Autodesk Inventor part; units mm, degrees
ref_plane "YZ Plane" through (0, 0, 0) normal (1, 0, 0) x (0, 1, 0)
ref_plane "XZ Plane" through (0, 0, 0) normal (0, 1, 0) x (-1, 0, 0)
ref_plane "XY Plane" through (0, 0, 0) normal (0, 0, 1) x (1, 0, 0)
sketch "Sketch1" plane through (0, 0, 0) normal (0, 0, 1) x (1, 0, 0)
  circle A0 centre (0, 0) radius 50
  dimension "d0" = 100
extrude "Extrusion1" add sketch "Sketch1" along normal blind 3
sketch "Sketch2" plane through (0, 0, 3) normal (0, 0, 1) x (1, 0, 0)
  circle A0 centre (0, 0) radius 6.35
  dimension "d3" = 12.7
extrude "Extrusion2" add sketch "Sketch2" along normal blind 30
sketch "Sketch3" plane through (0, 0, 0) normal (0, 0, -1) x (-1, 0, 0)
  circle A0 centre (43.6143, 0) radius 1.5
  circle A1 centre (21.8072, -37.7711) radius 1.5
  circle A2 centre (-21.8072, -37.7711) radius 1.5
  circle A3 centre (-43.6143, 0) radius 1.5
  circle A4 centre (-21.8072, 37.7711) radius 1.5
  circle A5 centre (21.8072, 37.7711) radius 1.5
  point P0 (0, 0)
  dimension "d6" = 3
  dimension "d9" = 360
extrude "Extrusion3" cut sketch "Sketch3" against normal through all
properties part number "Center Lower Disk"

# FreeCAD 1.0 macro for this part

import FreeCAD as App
import Part
import Sketcher
from FreeCAD import Vector
Q = App.Units.Quantity

doc = App.newDocument("Part")
params = doc.addObject("Spreadsheet::Sheet", "Params")
for row, (alias, value) in enumerate([
    ("sketch1_diameter", "3.937 in"),
    ("pad1_length", "0.1181102 in"),
    ("sketch2_diameter", "0.5 in"),
    ("pad2_length", "1.1811024 in"),
], start=1):
    params.set(f"A{row}", alias)
    params.set(f"B{row}", "=" + value)
    params.setAlias(f"B{row}", alias)

body = doc.addObject("PartDesign::Body", "Body")

# Sketch on XY plane
sketch1 = body.newObject("Sketcher::SketchObject", "Sketch")
sketch1.AttachmentSupport = (doc.getObject("XY_Plane"), [""])
sketch1.MapMode = "FlatFace"
sketch1.addGeometry(Part.Circle(Vector(0, 0, 0), Vector(0, 0, 1), 50), False)
sketch1.addConstraint([
    Sketcher.Constraint("Coincident", 0, 3, -1, 1),
    Sketcher.Constraint("Diameter", 0, Q("3.937 in")),
])
sketch1.setExpression("Constraints[1]", "Params.sketch1_diameter")
pad1 = body.newObject("PartDesign::Pad", "Pad")
pad1.Profile = sketch1
pad1.setExpression("Length", "Params.pad1_length")

# Sketch on XY plane
sketch2 = body.newObject("Sketcher::SketchObject", "Sketch001")
sketch2.AttachmentSupport = (doc.getObject("XY_Plane"), [""])
sketch2.MapMode = "FlatFace"
sketch2.AttachmentOffset = App.Placement(Vector(0, 0, 0.1181102 * 25.4), App.Rotation())
sketch2.addGeometry(Part.Circle(Vector(0, 0, 0), Vector(0, 0, 1), 6.35), False)
sketch2.addConstraint([
    Sketcher.Constraint("Coincident", 0, 3, -1, 1),
    Sketcher.Constraint("Diameter", 0, Q("0.5 in")),
])
sketch2.setExpression("Constraints[1]", "Params.sketch2_diameter")
pad2 = body.newObject("PartDesign::Pad", "Pad001")
pad2.Profile = sketch2
pad2.setExpression("Length", "Params.pad2_length")

# Sketch on XY plane
sketch3 = body.newObject("Sketcher::SketchObject", "Sketch002")
sketch3.AttachmentSupport = (doc.getObject("XY_Plane"), [""])
sketch3.MapMode = "FlatFace"
sketch3.addGeometry([
    Part.Circle(Vector(-43.6143, 0, 0), Vector(0, 0, 1), 1.5),  # 0
    Part.Circle(Vector(-21.8072, -37.7711, 0), Vector(0, 0, 1), 1.5),  # 1
    Part.Circle(Vector(21.8072, -37.7711, 0), Vector(0, 0, 1), 1.5),  # 2
    Part.Circle(Vector(43.6143, 0, 0), Vector(0, 0, 1), 1.5),  # 3
    Part.Circle(Vector(21.8072, 37.7711, 0), Vector(0, 0, 1), 1.5),  # 4
    Part.Circle(Vector(-21.8072, 37.7711, 0), Vector(0, 0, 1), 1.5),  # 5
], False)
sketch3.addConstraint([
    Sketcher.Constraint("Equal", 0, 1),
    Sketcher.Constraint("Equal", 1, 2),
    Sketcher.Constraint("Equal", 2, 3),
    Sketcher.Constraint("Equal", 3, 4),
    Sketcher.Constraint("Equal", 4, 5),
    Sketcher.Constraint("Symmetric", 0, 3, 3, 3, -1, 1),
    Sketcher.Constraint("Symmetric", 1, 3, 4, 3, -1, 1),
    Sketcher.Constraint("Symmetric", 2, 3, 5, 3, -1, 1),
    Sketcher.Constraint("Symmetric", 1, 3, 2, 3, -2),
    Sketcher.Constraint("PointOnObject", 0, 3, -1),
    Sketcher.Constraint("Diameter", 0, Q("0.1181 in")),
    Sketcher.Constraint("DistanceX", 0, 3, -1, 1, Q("1.7171 in")),
    Sketcher.Constraint("DistanceX", 1, 3, 2, 3, Q("1.7171 in")),
    Sketcher.Constraint("DistanceY", 2, 3, 4, 3, Q("2.9741 in")),
])
pocket1 = body.newObject("PartDesign::Pocket", "Pocket")
pocket1.Profile = sketch3
pocket1.Type = "ThroughAll"
pocket1.Reversed = True

doc.recompute()
